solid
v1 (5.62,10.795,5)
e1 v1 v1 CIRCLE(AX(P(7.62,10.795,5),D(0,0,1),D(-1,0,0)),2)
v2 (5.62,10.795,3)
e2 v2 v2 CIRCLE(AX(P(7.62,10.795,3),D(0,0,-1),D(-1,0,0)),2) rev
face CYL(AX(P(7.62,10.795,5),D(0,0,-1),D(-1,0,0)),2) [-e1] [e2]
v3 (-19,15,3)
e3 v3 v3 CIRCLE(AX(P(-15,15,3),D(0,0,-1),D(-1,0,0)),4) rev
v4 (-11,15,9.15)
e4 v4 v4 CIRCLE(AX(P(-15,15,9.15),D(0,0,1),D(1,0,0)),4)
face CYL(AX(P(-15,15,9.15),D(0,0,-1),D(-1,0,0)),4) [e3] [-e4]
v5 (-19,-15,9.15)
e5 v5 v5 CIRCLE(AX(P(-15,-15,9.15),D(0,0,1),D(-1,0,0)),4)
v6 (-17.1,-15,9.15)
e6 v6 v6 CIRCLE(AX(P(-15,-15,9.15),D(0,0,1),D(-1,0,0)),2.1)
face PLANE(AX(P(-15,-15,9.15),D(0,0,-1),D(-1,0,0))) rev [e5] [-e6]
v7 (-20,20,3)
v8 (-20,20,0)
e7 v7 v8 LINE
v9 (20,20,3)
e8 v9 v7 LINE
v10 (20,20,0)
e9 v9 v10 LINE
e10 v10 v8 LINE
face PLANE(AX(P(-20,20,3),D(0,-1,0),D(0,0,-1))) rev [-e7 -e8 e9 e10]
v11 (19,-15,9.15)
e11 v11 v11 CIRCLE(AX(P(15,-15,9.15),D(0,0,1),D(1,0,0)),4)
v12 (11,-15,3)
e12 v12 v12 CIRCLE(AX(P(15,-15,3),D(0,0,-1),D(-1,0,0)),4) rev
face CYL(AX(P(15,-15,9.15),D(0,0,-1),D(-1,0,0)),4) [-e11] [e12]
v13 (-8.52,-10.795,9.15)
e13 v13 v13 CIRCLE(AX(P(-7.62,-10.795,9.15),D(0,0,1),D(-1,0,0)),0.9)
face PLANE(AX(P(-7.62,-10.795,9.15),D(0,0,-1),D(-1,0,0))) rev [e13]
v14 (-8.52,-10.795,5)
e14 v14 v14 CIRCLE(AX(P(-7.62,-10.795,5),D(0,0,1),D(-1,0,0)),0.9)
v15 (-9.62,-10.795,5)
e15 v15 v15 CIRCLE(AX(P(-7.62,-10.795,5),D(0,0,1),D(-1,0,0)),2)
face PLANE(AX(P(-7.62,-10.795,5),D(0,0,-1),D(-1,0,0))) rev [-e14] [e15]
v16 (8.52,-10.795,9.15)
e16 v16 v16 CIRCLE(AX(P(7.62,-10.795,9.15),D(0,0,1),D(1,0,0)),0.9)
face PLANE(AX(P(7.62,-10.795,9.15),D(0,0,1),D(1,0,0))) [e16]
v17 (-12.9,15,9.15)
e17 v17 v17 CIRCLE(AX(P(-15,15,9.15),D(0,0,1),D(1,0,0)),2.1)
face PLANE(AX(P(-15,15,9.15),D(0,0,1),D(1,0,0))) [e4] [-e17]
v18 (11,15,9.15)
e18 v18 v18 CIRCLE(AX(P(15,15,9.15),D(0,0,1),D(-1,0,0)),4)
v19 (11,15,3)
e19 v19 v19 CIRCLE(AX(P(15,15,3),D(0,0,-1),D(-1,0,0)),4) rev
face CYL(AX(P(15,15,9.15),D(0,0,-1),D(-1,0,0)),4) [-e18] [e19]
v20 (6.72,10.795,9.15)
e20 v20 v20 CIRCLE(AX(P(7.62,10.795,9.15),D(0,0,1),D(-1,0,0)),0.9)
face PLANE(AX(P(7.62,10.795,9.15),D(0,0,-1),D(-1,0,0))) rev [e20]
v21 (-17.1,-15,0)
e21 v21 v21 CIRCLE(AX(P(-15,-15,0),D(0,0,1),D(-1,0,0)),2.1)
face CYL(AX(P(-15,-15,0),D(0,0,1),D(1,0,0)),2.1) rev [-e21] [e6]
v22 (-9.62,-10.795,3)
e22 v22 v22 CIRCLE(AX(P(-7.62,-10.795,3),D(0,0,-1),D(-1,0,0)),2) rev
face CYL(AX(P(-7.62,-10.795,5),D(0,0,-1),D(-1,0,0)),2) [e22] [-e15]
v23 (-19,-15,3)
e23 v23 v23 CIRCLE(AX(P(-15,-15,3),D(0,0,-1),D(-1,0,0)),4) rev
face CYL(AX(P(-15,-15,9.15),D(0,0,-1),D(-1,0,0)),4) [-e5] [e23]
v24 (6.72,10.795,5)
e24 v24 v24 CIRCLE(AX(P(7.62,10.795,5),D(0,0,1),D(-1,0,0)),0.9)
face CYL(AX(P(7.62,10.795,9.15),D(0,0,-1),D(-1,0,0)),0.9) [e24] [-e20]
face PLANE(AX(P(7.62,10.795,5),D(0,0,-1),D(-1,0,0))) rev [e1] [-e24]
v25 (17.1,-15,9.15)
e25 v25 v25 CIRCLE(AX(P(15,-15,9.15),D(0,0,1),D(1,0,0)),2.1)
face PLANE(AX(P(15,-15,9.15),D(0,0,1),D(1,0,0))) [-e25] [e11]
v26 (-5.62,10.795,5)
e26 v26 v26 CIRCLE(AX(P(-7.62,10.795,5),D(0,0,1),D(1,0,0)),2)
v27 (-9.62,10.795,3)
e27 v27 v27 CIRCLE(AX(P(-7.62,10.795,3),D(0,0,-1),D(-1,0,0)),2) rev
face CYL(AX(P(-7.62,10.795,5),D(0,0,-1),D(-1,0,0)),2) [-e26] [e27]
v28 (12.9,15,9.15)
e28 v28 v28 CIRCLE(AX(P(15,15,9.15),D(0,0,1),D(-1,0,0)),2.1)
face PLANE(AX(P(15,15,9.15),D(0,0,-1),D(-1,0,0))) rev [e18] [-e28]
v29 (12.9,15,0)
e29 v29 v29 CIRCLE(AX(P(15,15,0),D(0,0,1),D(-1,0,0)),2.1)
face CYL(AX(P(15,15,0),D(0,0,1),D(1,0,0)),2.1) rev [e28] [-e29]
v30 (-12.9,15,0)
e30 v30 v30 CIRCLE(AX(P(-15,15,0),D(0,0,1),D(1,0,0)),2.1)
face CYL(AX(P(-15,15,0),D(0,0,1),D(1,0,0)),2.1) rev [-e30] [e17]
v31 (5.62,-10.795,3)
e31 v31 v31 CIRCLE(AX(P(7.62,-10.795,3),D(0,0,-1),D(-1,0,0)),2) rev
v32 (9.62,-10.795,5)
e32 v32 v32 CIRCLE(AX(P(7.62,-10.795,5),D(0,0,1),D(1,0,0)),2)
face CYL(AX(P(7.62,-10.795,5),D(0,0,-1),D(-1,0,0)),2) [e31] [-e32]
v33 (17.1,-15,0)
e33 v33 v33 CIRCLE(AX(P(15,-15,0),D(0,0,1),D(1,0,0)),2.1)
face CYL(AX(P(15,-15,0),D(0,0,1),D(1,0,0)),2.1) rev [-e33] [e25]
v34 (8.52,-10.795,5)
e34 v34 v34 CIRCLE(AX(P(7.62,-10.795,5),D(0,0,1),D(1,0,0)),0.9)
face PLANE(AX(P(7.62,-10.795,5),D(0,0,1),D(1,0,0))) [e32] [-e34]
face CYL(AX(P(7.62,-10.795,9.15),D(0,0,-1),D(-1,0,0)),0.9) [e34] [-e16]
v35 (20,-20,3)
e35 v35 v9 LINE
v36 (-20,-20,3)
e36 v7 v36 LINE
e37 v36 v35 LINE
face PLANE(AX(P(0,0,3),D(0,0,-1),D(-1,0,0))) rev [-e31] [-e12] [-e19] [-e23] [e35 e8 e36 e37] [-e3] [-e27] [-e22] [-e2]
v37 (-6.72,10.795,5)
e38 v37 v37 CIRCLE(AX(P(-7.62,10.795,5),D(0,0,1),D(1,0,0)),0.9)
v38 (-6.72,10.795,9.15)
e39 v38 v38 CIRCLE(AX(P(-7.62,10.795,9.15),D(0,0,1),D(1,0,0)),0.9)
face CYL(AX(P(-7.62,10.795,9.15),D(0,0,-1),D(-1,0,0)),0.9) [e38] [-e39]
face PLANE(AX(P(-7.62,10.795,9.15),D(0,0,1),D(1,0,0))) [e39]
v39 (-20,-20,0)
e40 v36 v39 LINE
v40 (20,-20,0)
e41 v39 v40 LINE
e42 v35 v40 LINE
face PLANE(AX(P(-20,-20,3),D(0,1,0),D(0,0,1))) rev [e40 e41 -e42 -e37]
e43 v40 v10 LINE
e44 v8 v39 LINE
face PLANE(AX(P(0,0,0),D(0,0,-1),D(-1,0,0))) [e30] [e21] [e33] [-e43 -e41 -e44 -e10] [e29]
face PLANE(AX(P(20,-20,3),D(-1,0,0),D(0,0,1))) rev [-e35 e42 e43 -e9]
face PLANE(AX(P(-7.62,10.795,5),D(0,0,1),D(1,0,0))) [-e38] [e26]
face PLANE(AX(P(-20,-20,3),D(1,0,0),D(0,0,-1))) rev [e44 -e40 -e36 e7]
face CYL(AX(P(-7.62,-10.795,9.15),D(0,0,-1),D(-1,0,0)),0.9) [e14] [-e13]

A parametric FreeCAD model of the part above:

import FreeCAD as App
import Part
import Sketcher

V = App.Vector
Q = App.Units.Quantity


def add_polygon(sketch, points):
    """Adds a closed chain of lines whose ends are joined by coincident constraints."""
    first, n = sketch.GeometryCount, len(points)
    for a, b in zip(points, points[1:] + points[:1]):
        sketch.addGeometry(Part.LineSegment(App.Vector(*a, 0), App.Vector(*b, 0)), False)
    for i in range(n):
        sketch.addConstraint(Sketcher.Constraint("Coincident", first + i, 2, first + (i + 1) % n, 1))

doc = App.newDocument("Part")
params = doc.addObject("Spreadsheet::Sheet", "Params")
for row, (alias, value) in enumerate([
    ("sketch1_width", "40 mm"),
    ("pad1_length", "3 mm"),
    ("sketch2_diameter", "4 mm"),
    ("pad2_length", "2 mm"),
    ("sketch3_diameter", "1.8 mm"),
    ("pad3_length", "4.15 mm"),
    ("sketch4_diameter", "8 mm"),
    ("pad4_length", "6.15 mm"),
    ("sketch5_diameter", "4.2 mm"),
], start=1):
    params.set(f"A{row}", alias)
    params.set(f"B{row}", "=" + value)
    params.setAlias(f"B{row}", alias)

body = doc.addObject("PartDesign::Body", "Body")

# Sketch on XY plane
sketch1 = body.newObject("Sketcher::SketchObject", "Sketch")
sketch1.AttachmentSupport = (doc.getObject("XY_Plane"), [""])
sketch1.MapMode = "FlatFace"
add_polygon(sketch1, [(-20, 20), (-20, -20), (20, -20), (20, 20)])  # lines 0-3
sketch1.addConstraint(Sketcher.Constraint("Vertical", 0))
sketch1.addConstraint(Sketcher.Constraint("Horizontal", 1))
sketch1.addConstraint(Sketcher.Constraint("Vertical", 2))
sketch1.addConstraint(Sketcher.Constraint("Horizontal", 3))
sketch1.addConstraint(Sketcher.Constraint("Symmetric", 0, 2, 2, 2, -1, 1))
sketch1.addConstraint(Sketcher.Constraint("Equal", 3, 0))
sketch1.addConstraint(Sketcher.Constraint("DistanceX", 1, 1, 1, 2, Q("40 mm")))
sketch1.setExpression("Constraints[10]", "Params.sketch1_width")
pad1 = body.newObject("PartDesign::Pad", "Pad")
pad1.Profile = sketch1
pad1.setExpression("Length", "Params.pad1_length")

# Sketch on XY plane
sketch2 = body.newObject("Sketcher::SketchObject", "Sketch001")
sketch2.AttachmentSupport = (doc.getObject("XY_Plane"), [""])
sketch2.MapMode = "FlatFace"
sketch2.AttachmentOffset = App.Placement(V(0, 0, 3), App.Rotation())
sketch2.addGeometry(Part.Circle(V(-7.6, 10.8, 0), V(0, 0, 1), 2), False)
sketch2.addGeometry(Part.Circle(V(-7.6, -10.8, 0), V(0, 0, 1), 2), False)
sketch2.addGeometry(Part.Circle(V(7.6, 10.8, 0), V(0, 0, 1), 2), False)
sketch2.addGeometry(Part.Circle(V(7.6, -10.8, 0), V(0, 0, 1), 2), False)
sketch2.addConstraint(Sketcher.Constraint("Equal", 0, 1))
sketch2.addConstraint(Sketcher.Constraint("Equal", 1, 2))
sketch2.addConstraint(Sketcher.Constraint("Equal", 2, 3))
sketch2.addConstraint(Sketcher.Constraint("Symmetric", 1, 3, 2, 3, -1, 1))
sketch2.addConstraint(Sketcher.Constraint("Symmetric", 0, 3, 3, 3, -1, 1))
sketch2.addConstraint(Sketcher.Constraint("Symmetric", 0, 3, 2, 3, -2))
sketch2.addConstraint(Sketcher.Constraint("Diameter", 0, Q("4 mm")))
sketch2.addConstraint(Sketcher.Constraint("DistanceX", 0, 3, -1, 1, Q("7.62 mm")))
sketch2.addConstraint(Sketcher.Constraint("DistanceY", 1, 3, 0, 3, Q("21.59 mm")))
sketch2.setExpression("Constraints[6]", "Params.sketch2_diameter")
pad2 = body.newObject("PartDesign::Pad", "Pad001")
pad2.Profile = sketch2
pad2.setExpression("Length", "Params.pad2_length")

# Sketch on XY plane
sketch3 = body.newObject("Sketcher::SketchObject", "Sketch002")
sketch3.AttachmentSupport = (doc.getObject("XY_Plane"), [""])
sketch3.MapMode = "FlatFace"
sketch3.AttachmentOffset = App.Placement(V(0, 0, 5), App.Rotation())
sketch3.addGeometry(Part.Circle(V(-7.6, 10.8, 0), V(0, 0, 1), 0.9), False)
sketch3.addGeometry(Part.Circle(V(-7.6, -10.8, 0), V(0, 0, 1), 0.9), False)
sketch3.addGeometry(Part.Circle(V(7.6, -10.8, 0), V(0, 0, 1), 0.9), False)
sketch3.addGeometry(Part.Circle(V(7.6, 10.8, 0), V(0, 0, 1), 0.9), False)
sketch3.addConstraint(Sketcher.Constraint("Equal", 0, 1))
sketch3.addConstraint(Sketcher.Constraint("Equal", 1, 2))
sketch3.addConstraint(Sketcher.Constraint("Equal", 2, 3))
sketch3.addConstraint(Sketcher.Constraint("Symmetric", 0, 3, 2, 3, -1, 1))
sketch3.addConstraint(Sketcher.Constraint("Symmetric", 1, 3, 3, 3, -1, 1))
sketch3.addConstraint(Sketcher.Constraint("Symmetric", 1, 3, 2, 3, -2))
sketch3.addConstraint(Sketcher.Constraint("Diameter", 0, Q("1.8 mm")))
sketch3.addConstraint(Sketcher.Constraint("DistanceX", 0, 3, -1, 1, Q("7.62 mm")))
sketch3.addConstraint(Sketcher.Constraint("DistanceY", 1, 3, 0, 3, Q("21.59 mm")))
sketch3.setExpression("Constraints[6]", "Params.sketch3_diameter")
pad3 = body.newObject("PartDesign::Pad", "Pad002")
pad3.Profile = sketch3
pad3.setExpression("Length", "Params.pad3_length")

# Sketch on XY plane
sketch4 = body.newObject("Sketcher::SketchObject", "Sketch003")
sketch4.AttachmentSupport = (doc.getObject("XY_Plane"), [""])
sketch4.MapMode = "FlatFace"
sketch4.AttachmentOffset = App.Placement(V(0, 0, 3), App.Rotation())
sketch4.addGeometry(Part.Circle(V(-15, 15, 0), V(0, 0, 1), 4), False)
sketch4.addGeometry(Part.Circle(V(-15, -15, 0), V(0, 0, 1), 4), False)
sketch4.addGeometry(Part.Circle(V(15, -15, 0), V(0, 0, 1), 4), False)
sketch4.addGeometry(Part.Circle(V(15, 15, 0), V(0, 0, 1), 4), False)
sketch4.addConstraint(Sketcher.Constraint("Equal", 0, 1))
sketch4.addConstraint(Sketcher.Constraint("Equal", 1, 2))
sketch4.addConstraint(Sketcher.Constraint("Equal", 2, 3))
sketch4.addConstraint(Sketcher.Constraint("Symmetric", 0, 3, 2, 3, -1, 1))
sketch4.addConstraint(Sketcher.Constraint("Symmetric", 1, 3, 3, 3, -1, 1))
sketch4.addConstraint(Sketcher.Constraint("Symmetric", 1, 3, 2, 3, -2))
sketch4.addConstraint(Sketcher.Constraint("Diameter", 0, Q("8 mm")))
sketch4.addConstraint(Sketcher.Constraint("DistanceX", 0, 3, -1, 1, Q("15 mm")))
sketch4.addConstraint(Sketcher.Constraint("DistanceY", -1, 1, 0, 3, Q("15 mm")))
sketch4.setExpression("Constraints[6]", "Params.sketch4_diameter")
pad4 = body.newObject("PartDesign::Pad", "Pad003")
pad4.Profile = sketch4
pad4.setExpression("Length", "Params.pad4_length")

# Sketch on XY plane
sketch5 = body.newObject("Sketcher::SketchObject", "Sketch004")
sketch5.AttachmentSupport = (doc.getObject("XY_Plane"), [""])
sketch5.MapMode = "FlatFace"
sketch5.AttachmentOffset = App.Placement(V(0, 0, 9.15), App.Rotation())
sketch5.addGeometry(Part.Circle(V(-15, 15, 0), V(0, 0, 1), 2.1), False)
sketch5.addGeometry(Part.Circle(V(-15, -15, 0), V(0, 0, 1), 2.1), False)
sketch5.addGeometry(Part.Circle(V(15, -15, 0), V(0, 0, 1), 2.1), False)
sketch5.addGeometry(Part.Circle(V(15, 15, 0), V(0, 0, 1), 2.1), False)
sketch5.addConstraint(Sketcher.Constraint("Equal", 0, 1))
sketch5.addConstraint(Sketcher.Constraint("Equal", 1, 2))
sketch5.addConstraint(Sketcher.Constraint("Equal", 2, 3))
sketch5.addConstraint(Sketcher.Constraint("Symmetric", 0, 3, 2, 3, -1, 1))
sketch5.addConstraint(Sketcher.Constraint("Symmetric", 1, 3, 3, 3, -1, 1))
sketch5.addConstraint(Sketcher.Constraint("Symmetric", 1, 3, 2, 3, -2))
sketch5.addConstraint(Sketcher.Constraint("Diameter", 0, Q("4.2 mm")))
sketch5.addConstraint(Sketcher.Constraint("DistanceX", 0, 3, -1, 1, Q("15 mm")))
sketch5.addConstraint(Sketcher.Constraint("DistanceY", -1, 1, 0, 3, Q("15 mm")))
sketch5.setExpression("Constraints[6]", "Params.sketch5_diameter")
pocket1 = body.newObject("PartDesign::Pocket", "Pocket")
pocket1.Profile = sketch5
pocket1.Type = "ThroughAll"

doc.recompute()
